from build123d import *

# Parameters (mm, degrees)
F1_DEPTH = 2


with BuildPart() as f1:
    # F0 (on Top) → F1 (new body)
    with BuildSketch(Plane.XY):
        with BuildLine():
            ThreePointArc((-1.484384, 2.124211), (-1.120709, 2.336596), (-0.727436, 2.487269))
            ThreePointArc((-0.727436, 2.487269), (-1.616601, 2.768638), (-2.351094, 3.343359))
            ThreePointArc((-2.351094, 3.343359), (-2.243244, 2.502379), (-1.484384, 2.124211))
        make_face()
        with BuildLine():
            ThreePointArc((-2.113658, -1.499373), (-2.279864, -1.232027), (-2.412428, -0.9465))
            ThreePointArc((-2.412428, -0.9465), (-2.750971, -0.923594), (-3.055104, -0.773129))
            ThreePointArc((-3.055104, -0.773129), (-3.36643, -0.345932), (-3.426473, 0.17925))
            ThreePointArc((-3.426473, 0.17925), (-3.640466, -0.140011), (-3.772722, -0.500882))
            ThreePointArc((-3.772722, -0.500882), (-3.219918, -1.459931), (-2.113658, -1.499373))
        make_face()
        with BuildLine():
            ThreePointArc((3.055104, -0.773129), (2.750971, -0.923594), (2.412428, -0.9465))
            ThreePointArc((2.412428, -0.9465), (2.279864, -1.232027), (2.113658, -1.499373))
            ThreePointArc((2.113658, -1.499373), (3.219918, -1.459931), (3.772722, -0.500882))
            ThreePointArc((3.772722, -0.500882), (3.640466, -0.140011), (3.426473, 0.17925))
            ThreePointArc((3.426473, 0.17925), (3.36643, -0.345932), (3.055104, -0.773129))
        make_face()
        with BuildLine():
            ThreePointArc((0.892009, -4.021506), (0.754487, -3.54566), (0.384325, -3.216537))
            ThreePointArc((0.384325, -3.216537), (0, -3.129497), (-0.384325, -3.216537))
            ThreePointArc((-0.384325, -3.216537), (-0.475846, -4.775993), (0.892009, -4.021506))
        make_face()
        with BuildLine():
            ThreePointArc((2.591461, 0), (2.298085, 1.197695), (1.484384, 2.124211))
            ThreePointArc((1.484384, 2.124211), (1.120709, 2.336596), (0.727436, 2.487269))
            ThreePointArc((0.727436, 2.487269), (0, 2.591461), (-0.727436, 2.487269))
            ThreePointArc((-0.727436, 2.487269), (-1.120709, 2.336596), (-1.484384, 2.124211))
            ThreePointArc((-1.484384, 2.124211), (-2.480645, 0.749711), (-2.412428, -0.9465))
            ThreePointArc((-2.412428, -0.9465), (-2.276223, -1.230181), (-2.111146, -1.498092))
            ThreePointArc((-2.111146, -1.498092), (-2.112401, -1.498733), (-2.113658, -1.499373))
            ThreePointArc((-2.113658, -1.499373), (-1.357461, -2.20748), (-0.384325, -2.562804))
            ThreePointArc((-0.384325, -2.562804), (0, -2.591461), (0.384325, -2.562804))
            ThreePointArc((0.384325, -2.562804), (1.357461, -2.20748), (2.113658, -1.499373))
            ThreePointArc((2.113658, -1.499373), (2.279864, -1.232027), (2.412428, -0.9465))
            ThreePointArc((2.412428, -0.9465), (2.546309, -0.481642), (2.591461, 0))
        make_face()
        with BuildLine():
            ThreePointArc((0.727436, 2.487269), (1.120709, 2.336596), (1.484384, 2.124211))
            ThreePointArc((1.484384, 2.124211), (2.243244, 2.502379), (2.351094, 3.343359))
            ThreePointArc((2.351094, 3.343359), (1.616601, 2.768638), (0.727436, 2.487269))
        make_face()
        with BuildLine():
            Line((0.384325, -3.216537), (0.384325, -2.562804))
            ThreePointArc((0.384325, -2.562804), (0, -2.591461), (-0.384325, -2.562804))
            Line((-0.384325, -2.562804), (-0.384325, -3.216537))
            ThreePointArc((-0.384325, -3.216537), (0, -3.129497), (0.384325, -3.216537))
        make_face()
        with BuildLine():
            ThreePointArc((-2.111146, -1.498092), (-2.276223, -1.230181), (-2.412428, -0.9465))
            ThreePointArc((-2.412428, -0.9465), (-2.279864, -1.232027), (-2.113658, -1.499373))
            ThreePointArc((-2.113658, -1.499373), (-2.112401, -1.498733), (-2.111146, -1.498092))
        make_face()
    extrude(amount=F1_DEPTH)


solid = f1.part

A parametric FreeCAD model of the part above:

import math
import FreeCAD as App
import Part
import Sketcher
from FreeCAD import Vector

doc = App.newDocument("Part")
body = doc.addObject("PartDesign::Body", "Body")

# Sketch on XY plane
sketch1 = body.newObject("Sketcher::SketchObject", "Sketch")
sketch1.AttachmentSupport = (doc.getObject("XY_Plane"), [""])
sketch1.MapMode = "FlatFace"
sketch1.addGeometry(Part.ArcOfCircle(Part.Circle(Vector(-0.39335, 5.088653, 0), Vector(0, 0, 1), 2.622749), math.radians(-138.283564), math.radians(-97.318217)), False)
sketch1.addGeometry(Part.ArcOfCircle(Part.Circle(Vector(-1.509716, 3.023855, 0), Vector(0, 0, 1), 0.9), math.radians(159.206254), math.radians(271.612892)), False)
sketch1.addGeometry(Part.ArcOfCircle(Part.Circle(Vector(0.000003, -0.000001, 0), Vector(0, 0, 1), 2.591463), math.radians(124.945619), math.radians(201.422177)), False)
sketch1.addGeometry(Part.ArcOfCircle(Part.Circle(Vector(-2.523996, -0.08221, 0), Vector(0, 0, 1), 0.871461), math.radians(-127.549398), math.radians(-82.64457)), False)
sketch1.addGeometry(Part.ArcOfCircle(Part.Circle(Vector(-2.401215, 0.030442, 0), Vector(0, 0, 1), 1.036001), math.radians(171.741669), math.radians(230.863757)), False)
sketch1.addGeometry(Part.ArcOfCircle(Part.Circle(Vector(-2.205179, -0.870702, 0), Vector(0, 0, 1), 1.610576), math.radians(139.314205), math.radians(166.725336)), False)
sketch1.addGeometry(Part.ArcOfCircle(Part.Circle(Vector(-2.631209, -0.481749, 0), Vector(0, 0, 1), 1.141673), math.radians(-179.039767), math.radians(-63.042652)), False)
sketch1.addGeometry(Part.ArcOfCircle(Part.Circle(Vector(0.000002, 0.000003, 0), Vector(0, 0, 1), 2.591464), math.radians(-144.649092), math.radians(-98.528709)), False)
sketch1.addGeometry(Part.LineSegment(Vector(-0.384325, -2.562804, 0), Vector(-0.384325, -3.216537, 0)), False)
sketch1.addGeometry(Part.ArcOfCircle(Part.Circle(Vector(0, -4.021506, 0), Vector(0, 0, 1), 0.892009), math.radians(115.52171), math.radians(359.999984)), False)
sketch1.addGeometry(Part.ArcOfCircle(Part.Circle(Vector(-0.000001, -4.021506, 0), Vector(0, 0, 1), 0.89201), math.radians(0.000026), math.radians(64.478221)), False)
sketch1.addGeometry(Part.LineSegment(Vector(0.384325, -3.216537, 0), Vector(0.384325, -2.562804, 0)), False)
sketch1.addGeometry(Part.ArcOfCircle(Part.Circle(Vector(-0.000002, 0.000003, 0), Vector(0, 0, 1), 2.591464), math.radians(-81.471291), math.radians(-35.350908)), False)
sketch1.addGeometry(Part.ArcOfCircle(Part.Circle(Vector(2.631209, -0.481749, 0), Vector(0, 0, 1), 1.141673), math.radians(-116.957348), math.radians(-0.960233)), False)
sketch1.addGeometry(Part.ArcOfCircle(Part.Circle(Vector(2.205179, -0.870702, 0), Vector(0, 0, 1), 1.610576), math.radians(13.274664), math.radians(40.685795)), False)
sketch1.addGeometry(Part.ArcOfCircle(Part.Circle(Vector(2.401215, 0.030442, 0), Vector(0, 0, 1), 1.036001), math.radians(-50.863757), math.radians(8.258331)), False)
sketch1.addGeometry(Part.ArcOfCircle(Part.Circle(Vector(2.523996, -0.08221, 0), Vector(0, 0, 1), 0.871461), math.radians(-97.35543), math.radians(-52.450602)), False)
sketch1.addGeometry(Part.ArcOfCircle(Part.Circle(Vector(-0.000023, 0.000004, 0), Vector(0, 0, 1), 2.591484), math.radians(-21.422123), math.radians(-0.000083)), False)
sketch1.addGeometry(Part.ArcOfCircle(Part.Circle(Vector(-0.000002, -0.000001, 0), Vector(0, 0, 1), 2.591463), math.radians(0.000028), math.radians(55.054402)), False)
sketch1.addGeometry(Part.ArcOfCircle(Part.Circle(Vector(1.509716, 3.023855, 0), Vector(0, 0, 1), 0.9), math.radians(-91.612892), math.radians(20.793746)), False)
sketch1.addGeometry(Part.ArcOfCircle(Part.Circle(Vector(0.39335, 5.088653, 0), Vector(0, 0, 1), 2.622749), math.radians(-82.681783), math.radians(-41.716436)), False)
sketch1.addGeometry(Part.ArcOfCircle(Part.Circle(Vector(0, 0, 0), Vector(0, 0, 1), 2.591461), math.radians(73.697719), math.radians(106.302281)), False)
sketch1.addConstraint(Sketcher.Constraint("Coincident", 0, 1, 1, 1))
sketch1.addConstraint(Sketcher.Constraint("Coincident", 1, 2, 2, 1))
sketch1.addConstraint(Sketcher.Constraint("Coincident", 2, 2, 3, 2))
sketch1.addConstraint(Sketcher.Constraint("Coincident", 3, 1, 4, 2))
sketch1.addConstraint(Sketcher.Constraint("Coincident", 4, 1, 5, 1))
sketch1.addConstraint(Sketcher.Constraint("Coincident", 5, 2, 6, 1))
sketch1.addConstraint(Sketcher.Constraint("Coincident", 6, 2, 7, 1))
sketch1.addConstraint(Sketcher.Constraint("Coincident", 7, 2, 8, 1))
sketch1.addConstraint(Sketcher.Constraint("Coincident", 8, 2, 9, 1))
sketch1.addConstraint(Sketcher.Constraint("Coincident", 9, 2, 10, 1))
sketch1.addConstraint(Sketcher.Constraint("Coincident", 10, 2, 11, 1))
sketch1.addConstraint(Sketcher.Constraint("Coincident", 11, 2, 12, 1))
sketch1.addConstraint(Sketcher.Constraint("Coincident", 12, 2, 13, 1))
sketch1.addConstraint(Sketcher.Constraint("Coincident", 13, 2, 14, 1))
sketch1.addConstraint(Sketcher.Constraint("Coincident", 14, 2, 15, 2))
sketch1.addConstraint(Sketcher.Constraint("Coincident", 15, 1, 16, 2))
sketch1.addConstraint(Sketcher.Constraint("Coincident", 16, 1, 17, 1))
sketch1.addConstraint(Sketcher.Constraint("Coincident", 17, 2, 18, 1))
sketch1.addConstraint(Sketcher.Constraint("Coincident", 18, 2, 19, 1))
sketch1.addConstraint(Sketcher.Constraint("Coincident", 19, 2, 20, 2))
sketch1.addConstraint(Sketcher.Constraint("Coincident", 20, 1, 21, 1))
sketch1.addConstraint(Sketcher.Constraint("Coincident", 21, 2, 0, 2))
sketch1.addConstraint(Sketcher.Constraint("Vertical", 8))
sketch1.addConstraint(Sketcher.Constraint("Vertical", 11))
sketch1.addConstraint(Sketcher.Constraint("Coincident", 2, 3, -1, 1))
sketch1.addConstraint(Sketcher.Constraint("Coincident", 7, 3, -1, 1))
sketch1.addConstraint(Sketcher.Constraint("Coincident", 12, 3, -1, 1))
sketch1.addConstraint(Sketcher.Constraint("Coincident", 18, 3, -1, 1))
sketch1.addConstraint(Sketcher.Constraint("Coincident", 21, 3, -1, 1))
sketch1.addConstraint(Sketcher.Constraint("Coincident", 10, 3, 9, 3))
sketch1.addConstraint(Sketcher.Constraint("PointOnObject", 9, 3, -2))
sketch1.addConstraint(Sketcher.Constraint("PointOnObject", 17, 2, -1))
sketch1.addConstraint(Sketcher.Constraint("Radius", 1, 0.9))
sketch1.addConstraint(Sketcher.Constraint("Radius", 19, 0.9))
sketch1.addConstraint(Sketcher.Constraint("Radius", 4, 1.036001))
sketch1.addConstraint(Sketcher.Constraint("Radius", 15, 1.036001))
sketch1.addConstraint(Sketcher.Constraint("Radius", 0, 2.622749))
sketch1.addConstraint(Sketcher.Constraint("Radius", 3, 0.871461))
sketch1.addConstraint(Sketcher.Constraint("Radius", 9, 0.892009))
sketch1.addConstraint(Sketcher.Constraint("Radius", 16, 0.871461))
sketch1.addConstraint(Sketcher.Constraint("Radius", 20, 2.622749))
sketch1.addConstraint(Sketcher.Constraint("Radius", 21, 2.591461))
sketch1.addConstraint(Sketcher.Constraint("Radius", 2, 2.591463))
sketch1.addConstraint(Sketcher.Constraint("Radius", 5, 1.610576))
sketch1.addConstraint(Sketcher.Constraint("Radius", 6, 1.141673))
sketch1.addConstraint(Sketcher.Constraint("Radius", 7, 2.591464))
sketch1.addConstraint(Sketcher.Constraint("Radius", 12, 2.591464))
sketch1.addConstraint(Sketcher.Constraint("Radius", 13, 1.141673))
sketch1.addConstraint(Sketcher.Constraint("Radius", 14, 1.610576))
sketch1.addConstraint(Sketcher.Constraint("Radius", 17, 2.591484))
sketch1.addConstraint(Sketcher.Constraint("Radius", 18, 2.591463))
sketch1.addConstraint(Sketcher.Constraint("DistanceX", 3, 3, 2, 3, 2.523999))
sketch1.addConstraint(Sketcher.Constraint("DistanceY", 6, 3, 4, 1, 0.660999))
sketch1.addConstraint(Sketcher.Constraint("DistanceY", 13, 3, 14, 2, 0.660999))
sketch1.addConstraint(Sketcher.Constraint("DistanceY", 5, 3, -1, 1, 0.870702))
sketch1.addConstraint(Sketcher.Constraint("DistanceY", 14, 3, -1, 1, 0.870702))
sketch1.addConstraint(Sketcher.Constraint("DistanceY", 2, 2, -1, 1, 0.9465))
sketch1.addConstraint(Sketcher.Constraint("DistanceY", 16, 1, -1, 1, 0.9465))
sketch1.addConstraint(Sketcher.Constraint("DistanceY", 1, 3, 0, 3, 2.064798))
sketch1.addConstraint(Sketcher.Constraint("DistanceX", 4, 3, 1, 3, 0.891499))
sketch1.addConstraint(Sketcher.Constraint("DistanceX", 17, 3, 14, 3, 2.205202))
sketch1.addConstraint(Sketcher.Constraint("DistanceY", 19, 3, 0, 3, 2.064798))
sketch1.addConstraint(Sketcher.Constraint("DistanceX", 19, 3, 15, 3, 0.891499))
sketch1.addConstraint(Sketcher.Constraint("DistanceX", 0, 3, 20, 3, 0.786701))
sketch1.addConstraint(Sketcher.Constraint("DistanceY", 19, 3, 20, 3, 2.064798))
sketch1.addConstraint(Sketcher.Constraint("DistanceY", 9, 3, 7, 2, 1.458702))
sketch1.addConstraint(Sketcher.Constraint("DistanceY", 9, 2, 7, 2, 1.458702))
sketch1.addConstraint(Sketcher.Constraint("DistanceY", 9, 3, 11, 2, 1.458702))
sketch1.addConstraint(Sketcher.Constraint("DistanceY", 8, 2, 8, 1, 0.653733))
sketch1.addConstraint(Sketcher.Constraint("DistanceX", 0, 3, -1, 1, 0.39335))
sketch1.addConstraint(Sketcher.Constraint("DistanceX", 5, 3, -1, 1, 2.205179))
sketch1.addConstraint(Sketcher.Constraint("DistanceX", 6, 3, -1, 1, 2.631209))
sketch1.addConstraint(Sketcher.Constraint("DistanceY", 6, 3, -1, 1, 0.481749))
sketch1.addConstraint(Sketcher.Constraint("DistanceX", -1, 1, 13, 3, 2.631209))
sketch1.addConstraint(Sketcher.Constraint("DistanceY", 13, 3, -1, 1, 0.481749))
sketch1.addConstraint(Sketcher.Constraint("DistanceY", 16, 3, -1, 1, 0.08221))
sketch1.addConstraint(Sketcher.Constraint("DistanceY", -1, 1, 0, 1, 3.343359))
sketch1.addConstraint(Sketcher.Constraint("DistanceY", 3, 1, -1, 1, 0.773129))
sketch1.addConstraint(Sketcher.Constraint("DistanceY", 15, 1, -1, 1, 0.773129))
sketch1.addConstraint(Sketcher.Constraint("DistanceX", -1, 1, 16, 1, 2.412428))
pad1 = body.newObject("PartDesign::Pad", "Pad")
pad1.Profile = sketch1
pad1.Length = 2

doc.recompute()
